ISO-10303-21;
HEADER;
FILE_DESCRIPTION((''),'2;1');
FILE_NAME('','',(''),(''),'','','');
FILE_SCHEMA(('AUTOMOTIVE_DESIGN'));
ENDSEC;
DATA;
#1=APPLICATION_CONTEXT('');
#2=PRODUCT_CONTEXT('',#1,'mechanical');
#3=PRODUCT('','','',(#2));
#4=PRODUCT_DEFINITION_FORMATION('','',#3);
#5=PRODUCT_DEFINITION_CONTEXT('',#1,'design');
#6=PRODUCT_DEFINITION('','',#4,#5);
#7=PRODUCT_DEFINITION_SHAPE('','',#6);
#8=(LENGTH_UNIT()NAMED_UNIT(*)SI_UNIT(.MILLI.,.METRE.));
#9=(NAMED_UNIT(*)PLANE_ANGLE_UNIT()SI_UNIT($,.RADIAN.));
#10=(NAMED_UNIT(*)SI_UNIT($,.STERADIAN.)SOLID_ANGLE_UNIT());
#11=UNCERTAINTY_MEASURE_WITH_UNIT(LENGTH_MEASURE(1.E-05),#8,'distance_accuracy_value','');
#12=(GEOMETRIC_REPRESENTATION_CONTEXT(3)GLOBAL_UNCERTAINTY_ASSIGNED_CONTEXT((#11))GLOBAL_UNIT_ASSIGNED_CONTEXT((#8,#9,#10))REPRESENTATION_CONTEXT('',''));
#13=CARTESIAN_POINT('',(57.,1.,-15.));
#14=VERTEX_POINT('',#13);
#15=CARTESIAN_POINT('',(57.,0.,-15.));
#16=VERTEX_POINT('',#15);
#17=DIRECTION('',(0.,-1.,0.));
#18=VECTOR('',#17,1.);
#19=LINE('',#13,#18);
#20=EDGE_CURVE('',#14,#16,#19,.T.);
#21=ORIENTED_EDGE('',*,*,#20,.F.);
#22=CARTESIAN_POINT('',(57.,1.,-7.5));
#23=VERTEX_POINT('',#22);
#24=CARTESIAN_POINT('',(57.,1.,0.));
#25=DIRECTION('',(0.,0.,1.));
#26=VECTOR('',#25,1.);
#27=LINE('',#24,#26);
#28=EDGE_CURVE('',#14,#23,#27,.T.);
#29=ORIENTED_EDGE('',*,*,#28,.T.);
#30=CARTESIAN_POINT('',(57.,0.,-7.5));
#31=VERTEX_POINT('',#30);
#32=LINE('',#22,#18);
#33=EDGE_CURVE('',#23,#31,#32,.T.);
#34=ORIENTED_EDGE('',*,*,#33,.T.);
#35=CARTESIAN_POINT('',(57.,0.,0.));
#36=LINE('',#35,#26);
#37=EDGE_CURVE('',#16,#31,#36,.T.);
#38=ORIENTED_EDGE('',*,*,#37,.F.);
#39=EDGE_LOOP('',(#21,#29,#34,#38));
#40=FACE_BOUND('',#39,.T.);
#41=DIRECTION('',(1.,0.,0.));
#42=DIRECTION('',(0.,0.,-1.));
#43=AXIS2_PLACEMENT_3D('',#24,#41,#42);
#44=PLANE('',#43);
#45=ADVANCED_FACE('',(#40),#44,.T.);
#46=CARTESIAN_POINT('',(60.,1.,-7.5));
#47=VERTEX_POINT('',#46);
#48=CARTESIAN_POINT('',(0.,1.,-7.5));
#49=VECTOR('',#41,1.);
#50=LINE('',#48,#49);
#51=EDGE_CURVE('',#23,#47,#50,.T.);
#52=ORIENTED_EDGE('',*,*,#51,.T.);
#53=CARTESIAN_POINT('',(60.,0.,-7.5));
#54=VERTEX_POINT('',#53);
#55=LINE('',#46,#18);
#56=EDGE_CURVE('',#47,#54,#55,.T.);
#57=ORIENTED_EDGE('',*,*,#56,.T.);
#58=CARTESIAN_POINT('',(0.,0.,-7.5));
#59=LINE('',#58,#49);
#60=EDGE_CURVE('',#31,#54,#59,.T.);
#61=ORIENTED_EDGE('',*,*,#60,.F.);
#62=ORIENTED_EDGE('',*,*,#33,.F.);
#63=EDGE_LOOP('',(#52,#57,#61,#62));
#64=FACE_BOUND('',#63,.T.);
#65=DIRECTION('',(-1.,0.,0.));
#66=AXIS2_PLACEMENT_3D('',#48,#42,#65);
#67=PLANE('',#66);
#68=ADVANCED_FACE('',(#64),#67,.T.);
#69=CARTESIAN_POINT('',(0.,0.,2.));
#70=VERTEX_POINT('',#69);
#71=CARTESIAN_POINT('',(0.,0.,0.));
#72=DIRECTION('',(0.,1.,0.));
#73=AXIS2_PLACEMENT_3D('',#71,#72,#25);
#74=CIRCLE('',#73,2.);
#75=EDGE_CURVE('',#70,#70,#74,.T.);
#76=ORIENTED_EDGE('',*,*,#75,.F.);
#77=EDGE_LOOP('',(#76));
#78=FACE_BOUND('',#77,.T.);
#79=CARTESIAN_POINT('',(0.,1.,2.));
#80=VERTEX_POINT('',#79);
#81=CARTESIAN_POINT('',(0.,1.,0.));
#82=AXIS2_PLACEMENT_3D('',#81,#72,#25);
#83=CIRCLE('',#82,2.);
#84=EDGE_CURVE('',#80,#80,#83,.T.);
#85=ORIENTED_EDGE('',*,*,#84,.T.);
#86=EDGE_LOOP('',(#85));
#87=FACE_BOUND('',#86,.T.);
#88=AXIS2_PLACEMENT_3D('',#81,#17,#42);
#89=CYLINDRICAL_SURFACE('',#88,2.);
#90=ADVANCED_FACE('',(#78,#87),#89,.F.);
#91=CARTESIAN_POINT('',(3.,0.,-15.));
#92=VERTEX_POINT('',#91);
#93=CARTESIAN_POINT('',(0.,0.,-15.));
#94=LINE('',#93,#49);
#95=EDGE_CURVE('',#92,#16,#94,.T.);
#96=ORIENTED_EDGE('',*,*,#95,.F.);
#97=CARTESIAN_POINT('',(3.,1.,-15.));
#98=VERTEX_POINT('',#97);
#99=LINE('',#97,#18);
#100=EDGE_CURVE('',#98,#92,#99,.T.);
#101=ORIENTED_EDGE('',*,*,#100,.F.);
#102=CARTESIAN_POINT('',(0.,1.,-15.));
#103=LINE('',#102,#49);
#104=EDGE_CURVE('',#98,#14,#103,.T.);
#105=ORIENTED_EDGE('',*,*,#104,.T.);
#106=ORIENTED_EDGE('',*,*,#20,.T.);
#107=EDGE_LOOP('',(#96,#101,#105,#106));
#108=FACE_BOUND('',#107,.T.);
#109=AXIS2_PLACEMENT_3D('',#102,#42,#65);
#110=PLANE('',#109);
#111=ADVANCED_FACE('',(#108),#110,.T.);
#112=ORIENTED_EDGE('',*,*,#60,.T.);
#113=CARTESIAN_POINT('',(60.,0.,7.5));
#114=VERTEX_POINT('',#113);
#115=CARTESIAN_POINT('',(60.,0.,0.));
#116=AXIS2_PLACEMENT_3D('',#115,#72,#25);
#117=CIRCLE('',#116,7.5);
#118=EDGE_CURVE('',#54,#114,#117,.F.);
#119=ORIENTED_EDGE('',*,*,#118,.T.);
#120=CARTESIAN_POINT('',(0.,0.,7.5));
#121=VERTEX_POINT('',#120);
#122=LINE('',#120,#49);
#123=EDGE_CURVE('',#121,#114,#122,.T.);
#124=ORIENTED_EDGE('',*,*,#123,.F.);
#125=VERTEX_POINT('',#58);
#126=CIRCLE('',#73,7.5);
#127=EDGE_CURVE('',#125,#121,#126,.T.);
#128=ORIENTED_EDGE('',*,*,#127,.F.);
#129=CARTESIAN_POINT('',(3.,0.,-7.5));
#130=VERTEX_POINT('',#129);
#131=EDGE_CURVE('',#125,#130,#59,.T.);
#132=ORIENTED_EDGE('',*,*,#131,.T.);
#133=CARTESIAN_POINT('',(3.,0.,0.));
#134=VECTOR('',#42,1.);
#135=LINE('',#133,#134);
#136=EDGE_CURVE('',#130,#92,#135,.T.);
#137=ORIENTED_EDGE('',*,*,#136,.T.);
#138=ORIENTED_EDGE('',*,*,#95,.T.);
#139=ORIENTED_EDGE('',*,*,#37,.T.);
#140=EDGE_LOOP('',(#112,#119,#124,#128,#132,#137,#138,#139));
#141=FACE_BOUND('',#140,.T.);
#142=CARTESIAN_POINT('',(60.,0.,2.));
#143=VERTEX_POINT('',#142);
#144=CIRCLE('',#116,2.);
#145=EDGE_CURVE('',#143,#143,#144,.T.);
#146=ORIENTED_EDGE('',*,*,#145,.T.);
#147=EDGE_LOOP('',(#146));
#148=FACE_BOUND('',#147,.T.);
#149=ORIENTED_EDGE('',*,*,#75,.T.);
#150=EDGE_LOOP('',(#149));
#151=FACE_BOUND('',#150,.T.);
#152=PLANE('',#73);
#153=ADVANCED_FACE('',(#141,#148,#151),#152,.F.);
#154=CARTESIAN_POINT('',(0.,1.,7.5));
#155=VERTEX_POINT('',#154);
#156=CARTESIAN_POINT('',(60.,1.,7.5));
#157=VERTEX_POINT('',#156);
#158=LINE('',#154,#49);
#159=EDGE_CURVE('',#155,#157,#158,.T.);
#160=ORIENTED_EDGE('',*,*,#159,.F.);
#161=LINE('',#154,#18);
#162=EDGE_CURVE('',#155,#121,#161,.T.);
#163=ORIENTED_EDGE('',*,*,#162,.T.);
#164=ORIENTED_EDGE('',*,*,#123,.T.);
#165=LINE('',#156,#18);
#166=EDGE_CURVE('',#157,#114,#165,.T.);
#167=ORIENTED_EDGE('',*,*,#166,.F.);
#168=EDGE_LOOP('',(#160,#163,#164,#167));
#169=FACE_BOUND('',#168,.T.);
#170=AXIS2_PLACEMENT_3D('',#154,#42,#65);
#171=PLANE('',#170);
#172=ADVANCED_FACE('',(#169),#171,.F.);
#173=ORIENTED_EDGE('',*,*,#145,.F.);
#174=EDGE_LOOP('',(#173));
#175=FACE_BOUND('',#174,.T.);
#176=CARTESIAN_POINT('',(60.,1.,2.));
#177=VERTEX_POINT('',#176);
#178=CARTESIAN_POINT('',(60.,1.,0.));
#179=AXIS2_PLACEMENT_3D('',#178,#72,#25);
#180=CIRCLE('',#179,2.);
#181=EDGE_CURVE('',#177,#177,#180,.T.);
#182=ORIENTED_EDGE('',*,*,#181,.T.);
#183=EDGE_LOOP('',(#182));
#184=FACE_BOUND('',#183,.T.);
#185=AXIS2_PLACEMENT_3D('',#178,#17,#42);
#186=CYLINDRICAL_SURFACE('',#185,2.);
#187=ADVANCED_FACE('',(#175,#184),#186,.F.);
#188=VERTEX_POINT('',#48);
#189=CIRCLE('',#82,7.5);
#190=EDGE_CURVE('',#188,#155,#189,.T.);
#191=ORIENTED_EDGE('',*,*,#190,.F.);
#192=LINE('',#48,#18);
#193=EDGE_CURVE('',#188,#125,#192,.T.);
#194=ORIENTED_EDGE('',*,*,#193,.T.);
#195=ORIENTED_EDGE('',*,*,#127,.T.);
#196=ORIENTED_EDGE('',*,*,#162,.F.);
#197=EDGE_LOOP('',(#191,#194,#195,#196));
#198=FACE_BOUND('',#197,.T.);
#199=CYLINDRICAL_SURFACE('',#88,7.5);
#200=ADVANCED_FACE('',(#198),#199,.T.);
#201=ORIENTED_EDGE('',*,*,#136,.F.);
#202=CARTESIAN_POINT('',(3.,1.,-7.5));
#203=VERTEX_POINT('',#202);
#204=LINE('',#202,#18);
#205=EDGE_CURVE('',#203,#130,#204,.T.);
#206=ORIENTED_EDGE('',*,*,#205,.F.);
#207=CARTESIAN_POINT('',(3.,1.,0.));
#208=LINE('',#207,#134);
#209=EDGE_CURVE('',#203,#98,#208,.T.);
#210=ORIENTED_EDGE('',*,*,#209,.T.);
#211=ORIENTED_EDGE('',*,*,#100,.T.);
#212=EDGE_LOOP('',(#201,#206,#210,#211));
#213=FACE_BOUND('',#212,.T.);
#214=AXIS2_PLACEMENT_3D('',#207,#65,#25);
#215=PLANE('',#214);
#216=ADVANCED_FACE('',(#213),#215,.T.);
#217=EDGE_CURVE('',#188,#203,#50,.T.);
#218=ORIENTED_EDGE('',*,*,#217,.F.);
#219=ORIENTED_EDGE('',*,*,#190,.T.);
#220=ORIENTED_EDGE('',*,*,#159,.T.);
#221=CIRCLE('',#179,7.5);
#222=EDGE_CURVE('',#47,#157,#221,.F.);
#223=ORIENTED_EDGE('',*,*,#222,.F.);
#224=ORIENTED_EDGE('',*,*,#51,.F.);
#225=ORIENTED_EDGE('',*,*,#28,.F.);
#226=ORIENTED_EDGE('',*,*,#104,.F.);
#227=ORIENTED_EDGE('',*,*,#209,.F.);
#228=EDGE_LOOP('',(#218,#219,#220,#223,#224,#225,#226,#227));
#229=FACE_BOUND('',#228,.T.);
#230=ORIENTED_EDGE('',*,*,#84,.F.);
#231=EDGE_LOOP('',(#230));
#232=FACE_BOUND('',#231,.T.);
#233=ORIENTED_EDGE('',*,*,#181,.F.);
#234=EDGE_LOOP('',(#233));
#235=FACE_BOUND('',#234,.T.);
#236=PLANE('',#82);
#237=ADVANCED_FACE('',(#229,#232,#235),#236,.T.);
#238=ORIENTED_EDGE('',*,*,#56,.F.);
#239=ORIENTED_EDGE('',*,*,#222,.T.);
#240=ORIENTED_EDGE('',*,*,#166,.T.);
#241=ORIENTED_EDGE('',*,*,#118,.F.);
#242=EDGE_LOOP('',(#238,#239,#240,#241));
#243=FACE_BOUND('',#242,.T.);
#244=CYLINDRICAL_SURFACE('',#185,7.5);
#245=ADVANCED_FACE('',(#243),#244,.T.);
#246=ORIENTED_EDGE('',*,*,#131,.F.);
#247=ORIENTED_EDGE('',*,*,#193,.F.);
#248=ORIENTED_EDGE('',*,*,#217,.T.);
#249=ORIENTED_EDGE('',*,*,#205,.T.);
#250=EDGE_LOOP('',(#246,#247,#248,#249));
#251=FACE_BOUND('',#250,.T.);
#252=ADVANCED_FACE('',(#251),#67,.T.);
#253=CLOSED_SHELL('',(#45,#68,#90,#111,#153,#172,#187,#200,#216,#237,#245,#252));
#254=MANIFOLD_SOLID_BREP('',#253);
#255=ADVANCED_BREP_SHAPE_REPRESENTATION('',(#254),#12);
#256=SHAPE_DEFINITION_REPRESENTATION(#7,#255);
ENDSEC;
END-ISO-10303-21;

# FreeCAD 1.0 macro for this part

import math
import FreeCAD as App
import Part
import Sketcher
from FreeCAD import Vector
Q = App.Units.Quantity

doc = App.newDocument("Part")
body = doc.addObject("PartDesign::Body", "Body")

# Sketch on XZ plane
sketch1 = body.newObject("Sketcher::SketchObject", "Sketch")
sketch1.AttachmentSupport = (doc.getObject("XZ_Plane"), [""])
sketch1.MapMode = "FlatFace"
sketch1.addGeometry([
    Part.ArcOfCircle(Part.Circle(Vector(60, 0, 0), Vector(0, 0, 1), 7.5), math.radians(-90), math.radians(90)),  # 0
    Part.LineSegment(Vector(60, -7.5, 0), Vector(57, -7.5, 0)),  # 1
    Part.LineSegment(Vector(57, -7.5, 0), Vector(57, -15, 0)),  # 2
    Part.LineSegment(Vector(57, -15, 0), Vector(3, -15, 0)),  # 3
    Part.LineSegment(Vector(3, -15, 0), Vector(3, -7.5, 0)),  # 4
    Part.LineSegment(Vector(3, -7.5, 0), Vector(0, -7.5, 0)),  # 5
    Part.ArcOfCircle(Part.Circle(Vector(0, 0, 0), Vector(0, 0, 1), 7.5), math.radians(90), math.radians(270)),  # 6
    Part.LineSegment(Vector(0, 7.5, 0), Vector(60, 7.5, 0)),  # 7
    Part.Circle(Vector(60, 0, 0), Vector(0, 0, 1), 2),  # 8
    Part.Circle(Vector(0, 0, 0), Vector(0, 0, 1), 2),  # 9
], False)
sketch1.addConstraint([
    Sketcher.Constraint("Tangent", 0, 1, 1, 1),
    Sketcher.Constraint("Coincident", 1, 2, 2, 1),
    Sketcher.Constraint("Coincident", 2, 2, 3, 1),
    Sketcher.Constraint("Coincident", 3, 2, 4, 1),
    Sketcher.Constraint("Coincident", 4, 2, 5, 1),
    Sketcher.Constraint("Tangent", 5, 2, 6, 2),
    Sketcher.Constraint("Tangent", 6, 1, 7, 1),
    Sketcher.Constraint("Tangent", 7, 2, 0, 2),
    Sketcher.Constraint("Horizontal", 1),
    Sketcher.Constraint("Vertical", 2),
    Sketcher.Constraint("Horizontal", 3),
    Sketcher.Constraint("Vertical", 4),
    Sketcher.Constraint("Horizontal", 5),
    Sketcher.Constraint("Horizontal", 7),
    Sketcher.Constraint("Coincident", 6, 3, -1, 1),
    Sketcher.Constraint("Coincident", 9, 3, -1, 1),
    Sketcher.Constraint("Coincident", 8, 3, 0, 3),
    Sketcher.Constraint("Equal", 0, 6),
    Sketcher.Constraint("Equal", 8, 9),
    Sketcher.Constraint("Equal", 1, 5),
    Sketcher.Constraint("Diameter", 8, Q("4 mm")),
    Sketcher.Constraint("Radius", 0, Q("7.5 mm")),
    Sketcher.Constraint("DistanceX", 1, 2, 1, 1, Q("3 mm")),
    Sketcher.Constraint("DistanceX", 3, 2, 3, 1, Q("54 mm")),
    Sketcher.Constraint("DistanceY", 2, 2, 2, 1, Q("7.5 mm")),
])
pad1 = body.newObject("PartDesign::Pad", "Pad")
pad1.Profile = sketch1
pad1.Length = 1
pad1.Reversed = True

doc.recompute()
